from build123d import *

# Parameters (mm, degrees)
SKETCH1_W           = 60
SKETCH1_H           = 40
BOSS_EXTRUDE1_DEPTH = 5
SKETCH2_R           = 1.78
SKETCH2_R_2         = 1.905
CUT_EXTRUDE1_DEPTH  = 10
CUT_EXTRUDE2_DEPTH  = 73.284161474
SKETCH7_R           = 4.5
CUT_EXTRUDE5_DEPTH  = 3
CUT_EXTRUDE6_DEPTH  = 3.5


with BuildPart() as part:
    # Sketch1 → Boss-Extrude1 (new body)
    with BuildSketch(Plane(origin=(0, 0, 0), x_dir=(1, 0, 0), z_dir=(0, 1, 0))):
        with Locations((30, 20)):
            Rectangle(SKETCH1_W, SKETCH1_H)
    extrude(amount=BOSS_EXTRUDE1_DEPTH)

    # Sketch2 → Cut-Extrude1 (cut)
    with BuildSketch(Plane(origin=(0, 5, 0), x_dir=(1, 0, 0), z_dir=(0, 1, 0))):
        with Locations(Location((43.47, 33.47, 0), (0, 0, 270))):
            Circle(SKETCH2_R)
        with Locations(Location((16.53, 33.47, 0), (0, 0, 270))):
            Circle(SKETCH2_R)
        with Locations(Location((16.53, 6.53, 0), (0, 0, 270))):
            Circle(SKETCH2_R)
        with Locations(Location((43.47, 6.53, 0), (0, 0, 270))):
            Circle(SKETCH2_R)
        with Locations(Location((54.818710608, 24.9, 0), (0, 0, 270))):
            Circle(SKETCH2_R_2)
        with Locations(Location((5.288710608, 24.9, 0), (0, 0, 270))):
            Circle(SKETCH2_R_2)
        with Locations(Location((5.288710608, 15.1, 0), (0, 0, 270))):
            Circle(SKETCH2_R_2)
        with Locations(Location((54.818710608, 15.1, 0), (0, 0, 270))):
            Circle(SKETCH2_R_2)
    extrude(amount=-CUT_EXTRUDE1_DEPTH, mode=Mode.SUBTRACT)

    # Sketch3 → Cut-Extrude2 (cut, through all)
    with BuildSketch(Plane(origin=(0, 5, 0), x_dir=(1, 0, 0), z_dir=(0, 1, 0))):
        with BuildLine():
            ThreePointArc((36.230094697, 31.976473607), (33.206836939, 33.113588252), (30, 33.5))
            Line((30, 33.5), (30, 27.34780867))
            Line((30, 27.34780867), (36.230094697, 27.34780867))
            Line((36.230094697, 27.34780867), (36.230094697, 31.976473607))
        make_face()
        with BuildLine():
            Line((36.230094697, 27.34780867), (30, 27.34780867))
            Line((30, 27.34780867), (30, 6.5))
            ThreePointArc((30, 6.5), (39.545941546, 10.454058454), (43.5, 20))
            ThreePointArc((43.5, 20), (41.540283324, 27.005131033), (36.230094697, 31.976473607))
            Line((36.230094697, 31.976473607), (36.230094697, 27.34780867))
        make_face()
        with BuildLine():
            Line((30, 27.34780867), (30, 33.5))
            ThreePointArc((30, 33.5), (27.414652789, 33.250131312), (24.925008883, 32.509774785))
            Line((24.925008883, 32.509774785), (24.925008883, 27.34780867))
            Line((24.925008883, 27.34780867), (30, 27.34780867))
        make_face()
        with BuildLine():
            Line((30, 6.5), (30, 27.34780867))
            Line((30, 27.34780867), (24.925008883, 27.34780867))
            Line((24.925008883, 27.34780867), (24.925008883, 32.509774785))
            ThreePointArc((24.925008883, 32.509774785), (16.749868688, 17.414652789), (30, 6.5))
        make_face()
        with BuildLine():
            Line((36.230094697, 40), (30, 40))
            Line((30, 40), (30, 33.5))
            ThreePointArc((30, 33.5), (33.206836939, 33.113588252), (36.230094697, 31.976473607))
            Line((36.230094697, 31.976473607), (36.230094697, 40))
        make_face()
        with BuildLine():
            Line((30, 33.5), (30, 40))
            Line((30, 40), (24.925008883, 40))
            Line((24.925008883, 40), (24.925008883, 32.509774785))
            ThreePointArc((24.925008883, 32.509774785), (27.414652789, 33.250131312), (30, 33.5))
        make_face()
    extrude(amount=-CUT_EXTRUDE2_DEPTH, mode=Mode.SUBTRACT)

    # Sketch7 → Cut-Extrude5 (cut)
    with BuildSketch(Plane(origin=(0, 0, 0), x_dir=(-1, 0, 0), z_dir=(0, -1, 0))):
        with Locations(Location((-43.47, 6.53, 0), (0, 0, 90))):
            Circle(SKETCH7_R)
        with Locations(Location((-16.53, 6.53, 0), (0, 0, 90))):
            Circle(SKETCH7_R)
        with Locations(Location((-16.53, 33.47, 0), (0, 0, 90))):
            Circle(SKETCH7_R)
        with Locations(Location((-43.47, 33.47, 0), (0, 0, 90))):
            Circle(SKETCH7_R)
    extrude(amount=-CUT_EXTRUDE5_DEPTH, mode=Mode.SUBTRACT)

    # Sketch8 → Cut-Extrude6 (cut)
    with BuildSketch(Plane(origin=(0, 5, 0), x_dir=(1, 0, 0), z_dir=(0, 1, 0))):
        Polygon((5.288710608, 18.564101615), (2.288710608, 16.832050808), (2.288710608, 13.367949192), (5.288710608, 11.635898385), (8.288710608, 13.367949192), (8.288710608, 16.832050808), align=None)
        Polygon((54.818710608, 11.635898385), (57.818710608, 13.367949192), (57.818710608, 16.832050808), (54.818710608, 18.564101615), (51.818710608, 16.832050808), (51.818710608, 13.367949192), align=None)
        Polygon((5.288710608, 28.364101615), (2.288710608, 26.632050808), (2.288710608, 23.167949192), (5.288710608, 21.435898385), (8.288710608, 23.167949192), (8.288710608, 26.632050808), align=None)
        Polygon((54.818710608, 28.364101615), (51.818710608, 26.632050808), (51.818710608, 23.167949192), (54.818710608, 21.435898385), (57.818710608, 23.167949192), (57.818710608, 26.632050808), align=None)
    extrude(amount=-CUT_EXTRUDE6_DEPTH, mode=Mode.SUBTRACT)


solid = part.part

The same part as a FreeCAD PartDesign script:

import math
import FreeCAD as App
import Part
import Sketcher
from FreeCAD import Vector
Q = App.Units.Quantity


def add_polygon(sketch, points):
    """Adds a closed chain of lines whose ends are joined by coincident constraints."""
    first, n = sketch.GeometryCount, len(points)
    for a, b in zip(points, points[1:] + points[:1]):
        sketch.addGeometry(Part.LineSegment(App.Vector(*a, 0), App.Vector(*b, 0)), False)
    for i in range(n):
        sketch.addConstraint(Sketcher.Constraint("Coincident", first + i, 2, first + (i + 1) % n, 1))

doc = App.newDocument("Part")
params = doc.addObject("Spreadsheet::Sheet", "Params")
for row, (alias, value) in enumerate([
    ("sketch1_width", "60 mm"),
    ("sketch1_height", "40 mm"),
    ("pad1_length", "5 mm"),
    ("sketch2_diameter", "3.56 mm"),
    ("sketch2_diameter2", "3.81 mm"),
    ("pocket1_length", "10 mm"),
    ("sketch3_radius", "13.5 mm"),
    ("sketch4_diameter", "9 mm"),
    ("pocket3_length", "3 mm"),
    ("pocket4_length", "3.5 mm"),
], start=1):
    params.set(f"A{row}", alias)
    params.set(f"B{row}", "=" + value)
    params.setAlias(f"B{row}", alias)

body = doc.addObject("PartDesign::Body", "Body")

# Sketch on XZ plane
sketch1 = body.newObject("Sketcher::SketchObject", "Sketch")
sketch1.AttachmentSupport = (doc.getObject("XZ_Plane"), [""])
sketch1.MapMode = "FlatFace"
add_polygon(sketch1, [(0, -40), (0, 0), (60, 0), (60, -40)])  # lines 0-3
sketch1.addConstraint(Sketcher.Constraint("Vertical", 0))
sketch1.addConstraint(Sketcher.Constraint("Horizontal", 1))
sketch1.addConstraint(Sketcher.Constraint("Vertical", 2))
sketch1.addConstraint(Sketcher.Constraint("Horizontal", 3))
sketch1.addConstraint(Sketcher.Constraint("Coincident", 0, 2, -1, 1))
sketch1.addConstraint(Sketcher.Constraint("DistanceX", 1, 1, 1, 2, 60.0))
sketch1.addConstraint(Sketcher.Constraint("DistanceY", 0, 1, 0, 2, 40.0))
sketch1.setExpression("Constraints[9]", "Params.sketch1_width")
sketch1.setExpression("Constraints[10]", "Params.sketch1_height")
pad1 = body.newObject("PartDesign::Pad", "Pad")
pad1.Profile = sketch1
pad1.setExpression("Length", "Params.pad1_length")
pad1.Reversed = True

# Sketch on XZ plane
sketch2 = body.newObject("Sketcher::SketchObject", "Sketch001")
sketch2.AttachmentSupport = (doc.getObject("XZ_Plane"), [""])
sketch2.MapMode = "FlatFace"
sketch2.AttachmentOffset = App.Placement(Vector(0, 0, -5), App.Rotation())
sketch2.addGeometry(Part.Circle(Vector(43.47, -33.47, 0), Vector(0, 0, 1), 1.78), False)
sketch2.addGeometry(Part.Circle(Vector(16.53, -33.47, 0), Vector(0, 0, 1), 1.78), False)
sketch2.addGeometry(Part.Circle(Vector(16.53, -6.53, 0), Vector(0, 0, 1), 1.78), False)
sketch2.addGeometry(Part.Circle(Vector(43.47, -6.53, 0), Vector(0, 0, 1), 1.78), False)
sketch2.addGeometry(Part.Circle(Vector(54.818711, -24.9, 0), Vector(0, 0, 1), 1.905), False)
sketch2.addGeometry(Part.Circle(Vector(5.288711, -24.9, 0), Vector(0, 0, 1), 1.905), False)
sketch2.addGeometry(Part.Circle(Vector(5.288711, -15.1, 0), Vector(0, 0, 1), 1.905), False)
sketch2.addGeometry(Part.Circle(Vector(54.818711, -15.1, 0), Vector(0, 0, 1), 1.905), False)
sketch2.addConstraint(Sketcher.Constraint("Equal", 0, 1))
sketch2.addConstraint(Sketcher.Constraint("Equal", 1, 2))
sketch2.addConstraint(Sketcher.Constraint("Equal", 2, 3))
sketch2.addConstraint(Sketcher.Constraint("Equal", 4, 5))
sketch2.addConstraint(Sketcher.Constraint("Equal", 5, 6))
sketch2.addConstraint(Sketcher.Constraint("Equal", 6, 7))
sketch2.addConstraint(Sketcher.Constraint("Horizontal", 0, 3, 1, 3))
sketch2.addConstraint(Sketcher.Constraint("Horizontal", 2, 3, 3, 3))
sketch2.addConstraint(Sketcher.Constraint("Horizontal", 4, 3, 5, 3))
sketch2.addConstraint(Sketcher.Constraint("Horizontal", 6, 3, 7, 3))
sketch2.addConstraint(Sketcher.Constraint("Vertical", 1, 3, 2, 3))
sketch2.addConstraint(Sketcher.Constraint("Vertical", 0, 3, 3, 3))
sketch2.addConstraint(Sketcher.Constraint("Vertical", 5, 3, 6, 3))
sketch2.addConstraint(Sketcher.Constraint("Vertical", 4, 3, 7, 3))
sketch2.addConstraint(Sketcher.Constraint("Diameter", 0, 3.56))
sketch2.addConstraint(Sketcher.Constraint("Diameter", 4, 3.81))
sketch2.addConstraint(Sketcher.Constraint("DistanceY", 4, 3, -1, 1, 24.9))
sketch2.addConstraint(Sketcher.Constraint("DistanceY", 6, 3, -1, 1, 15.1))
sketch2.addConstraint(Sketcher.Constraint("DistanceX", -1, 1, 0, 3, 43.47))
sketch2.addConstraint(Sketcher.Constraint("DistanceY", 0, 3, -1, 1, 33.47))
sketch2.addConstraint(Sketcher.Constraint("DistanceX", -1, 1, 1, 3, 16.53))
sketch2.addConstraint(Sketcher.Constraint("DistanceY", 2, 3, -1, 1, 6.53))
sketch2.addConstraint(Sketcher.Constraint("DistanceX", 5, 3, 4, 3, 49.53))
sketch2.addConstraint(Sketcher.Constraint("DistanceX", -1, 1, 4, 3, 54.818711))
sketch2.setExpression("Constraints[14]", "Params.sketch2_diameter")
sketch2.setExpression("Constraints[15]", "Params.sketch2_diameter2")
pocket1 = body.newObject("PartDesign::Pocket", "Pocket")
pocket1.Profile = sketch2
pocket1.setExpression("Length", "Params.pocket1_length")
pocket1.Reversed = True

# Sketch on XZ plane
sketch3 = body.newObject("Sketcher::SketchObject", "Sketch002")
sketch3.AttachmentSupport = (doc.getObject("XZ_Plane"), [""])
sketch3.MapMode = "FlatFace"
sketch3.AttachmentOffset = App.Placement(Vector(0, 0, -5), App.Rotation())
sketch3.addGeometry(Part.ArcOfCircle(Part.Circle(Vector(30, -20, 0), Vector(0, 0, 1), 13.5), math.radians(90), math.radians(247.918488)), False)
sketch3.addGeometry(Part.ArcOfCircle(Part.Circle(Vector(30, -20, 0), Vector(0, 0, 1), 13.5), math.radians(0), math.radians(90)), False)
sketch3.addGeometry(Part.ArcOfCircle(Part.Circle(Vector(30, -20, 0), Vector(0, 0, 1), 13.5), math.radians(-62.516801), math.radians(0)), False)
sketch3.addGeometry(Part.LineSegment(Vector(36.230095, -31.976474, 0), Vector(36.230095, -40, 0)), False)
sketch3.addGeometry(Part.LineSegment(Vector(36.230095, -40, 0), Vector(24.925009, -40, 0)), False)
sketch3.addGeometry(Part.LineSegment(Vector(24.925009, -40, 0), Vector(24.925009, -32.509775, 0)), False)
sketch3.addConstraint(Sketcher.Constraint("Tangent", 0, 1, 1, 2))
sketch3.addConstraint(Sketcher.Constraint("Tangent", 1, 1, 2, 2))
sketch3.addConstraint(Sketcher.Constraint("Coincident", 2, 1, 3, 1))
sketch3.addConstraint(Sketcher.Constraint("Coincident", 3, 2, 4, 1))
sketch3.addConstraint(Sketcher.Constraint("Coincident", 4, 2, 5, 1))
sketch3.addConstraint(Sketcher.Constraint("Coincident", 5, 2, 0, 2))
sketch3.addConstraint(Sketcher.Constraint("Vertical", 3))
sketch3.addConstraint(Sketcher.Constraint("Horizontal", 4))
sketch3.addConstraint(Sketcher.Constraint("Vertical", 5))
sketch3.addConstraint(Sketcher.Constraint("Coincident", 2, 3, 0, 3))
sketch3.addConstraint(Sketcher.Constraint("Horizontal", 2, 3, 1, 1))
sketch3.addConstraint(Sketcher.Constraint("Vertical", 2, 3, 0, 1))
sketch3.addConstraint(Sketcher.Constraint("Radius", 0, 13.5))
sketch3.addConstraint(Sketcher.Constraint("DistanceX", -1, 1, 0, 3, 30.0))
sketch3.addConstraint(Sketcher.Constraint("DistanceY", 0, 3, -1, 1, 20.0))
sketch3.addConstraint(Sketcher.Constraint("DistanceY", 3, 2, -1, 1, 40.0))
sketch3.addConstraint(Sketcher.Constraint("DistanceY", 5, 2, 2, 1, 0.533301))
sketch3.addConstraint(Sketcher.Constraint("DistanceX", 4, 2, 4, 1, 11.305086))
sketch3.setExpression("Constraints[12]", "Params.sketch3_radius")
pocket2 = body.newObject("PartDesign::Pocket", "Pocket001")
pocket2.Profile = sketch3
pocket2.Type = "ThroughAll"
pocket2.Reversed = True

# Sketch on XZ plane
sketch4 = body.newObject("Sketcher::SketchObject", "Sketch003")
sketch4.AttachmentSupport = (doc.getObject("XZ_Plane"), [""])
sketch4.MapMode = "FlatFace"
sketch4.addGeometry(Part.Circle(Vector(43.47, -6.53, 0), Vector(0, 0, 1), 4.5), False)
sketch4.addGeometry(Part.Circle(Vector(16.53, -6.53, 0), Vector(0, 0, 1), 4.5), False)
sketch4.addGeometry(Part.Circle(Vector(16.53, -33.47, 0), Vector(0, 0, 1), 4.5), False)
sketch4.addGeometry(Part.Circle(Vector(43.47, -33.47, 0), Vector(0, 0, 1), 4.5), False)
sketch4.addConstraint(Sketcher.Constraint("Equal", 0, 1))
sketch4.addConstraint(Sketcher.Constraint("Equal", 1, 2))
sketch4.addConstraint(Sketcher.Constraint("Equal", 2, 3))
sketch4.addConstraint(Sketcher.Constraint("Horizontal", 0, 3, 1, 3))
sketch4.addConstraint(Sketcher.Constraint("Horizontal", 2, 3, 3, 3))
sketch4.addConstraint(Sketcher.Constraint("Vertical", 1, 3, 2, 3))
sketch4.addConstraint(Sketcher.Constraint("Vertical", 0, 3, 3, 3))
sketch4.addConstraint(Sketcher.Constraint("Diameter", 0, 9.0))
sketch4.addConstraint(Sketcher.Constraint("DistanceX", -1, 1, 0, 3, 43.47))
sketch4.addConstraint(Sketcher.Constraint("DistanceY", 0, 3, -1, 1, 6.53))
sketch4.addConstraint(Sketcher.Constraint("DistanceX", -1, 1, 1, 3, 16.53))
sketch4.addConstraint(Sketcher.Constraint("DistanceY", 2, 3, -1, 1, 33.47))
sketch4.setExpression("Constraints[7]", "Params.sketch4_diameter")
pocket3 = body.newObject("PartDesign::Pocket", "Pocket002")
pocket3.Profile = sketch4
pocket3.setExpression("Length", "Params.pocket3_length")

# Sketch on XZ plane
sketch5 = body.newObject("Sketcher::SketchObject", "Sketch004")
sketch5.AttachmentSupport = (doc.getObject("XZ_Plane"), [""])
sketch5.MapMode = "FlatFace"
sketch5.AttachmentOffset = App.Placement(Vector(0, 0, -5), App.Rotation())
add_polygon(sketch5, [(5.288711, -18.564102), (2.288711, -16.832051), (2.288711, -13.367949), (5.288711, -11.635898), (8.288711, -13.367949), (8.288711, -16.832051)])  # lines 0-5
add_polygon(sketch5, [(54.818711, -11.635898), (57.818711, -13.367949), (57.818711, -16.832051), (54.818711, -18.564102), (51.818711, -16.832051), (51.818711, -13.367949)])  # lines 6-11
add_polygon(sketch5, [(5.288711, -28.364102), (2.288711, -26.632051), (2.288711, -23.167949), (5.288711, -21.435898), (8.288711, -23.167949), (8.288711, -26.632051)])  # lines 12-17
add_polygon(sketch5, [(54.818711, -28.364102), (51.818711, -26.632051), (51.818711, -23.167949), (54.818711, -21.435898), (57.818711, -23.167949), (57.818711, -26.632051)])  # lines 18-23
sketch5.addConstraint(Sketcher.Constraint("Vertical", 1))
sketch5.addConstraint(Sketcher.Constraint("Vertical", 4))
sketch5.addConstraint(Sketcher.Constraint("Vertical", 7))
sketch5.addConstraint(Sketcher.Constraint("Vertical", 10))
sketch5.addConstraint(Sketcher.Constraint("Vertical", 13))
sketch5.addConstraint(Sketcher.Constraint("Vertical", 16))
sketch5.addConstraint(Sketcher.Constraint("Vertical", 19))
sketch5.addConstraint(Sketcher.Constraint("Vertical", 22))
sketch5.addConstraint(Sketcher.Constraint("Parallel", 0, 3))
sketch5.addConstraint(Sketcher.Constraint("Parallel", 2, 5))
sketch5.addConstraint(Sketcher.Constraint("Parallel", 3, 6))
sketch5.addConstraint(Sketcher.Constraint("Parallel", 5, 8))
sketch5.addConstraint(Sketcher.Constraint("Parallel", 6, 9))
sketch5.addConstraint(Sketcher.Constraint("Parallel", 8, 11))
sketch5.addConstraint(Sketcher.Constraint("Parallel", 9, 12))
sketch5.addConstraint(Sketcher.Constraint("Parallel", 11, 14))
sketch5.addConstraint(Sketcher.Constraint("Parallel", 12, 15))
sketch5.addConstraint(Sketcher.Constraint("Parallel", 14, 17))
sketch5.addConstraint(Sketcher.Constraint("Parallel", 15, 18))
sketch5.addConstraint(Sketcher.Constraint("Parallel", 17, 20))
sketch5.addConstraint(Sketcher.Constraint("Parallel", 18, 21))
sketch5.addConstraint(Sketcher.Constraint("Parallel", 20, 23))
sketch5.addConstraint(Sketcher.Constraint("Horizontal", 1, 2, 3, 2))
sketch5.addConstraint(Sketcher.Constraint("Horizontal", 0, 2, 4, 2))
sketch5.addConstraint(Sketcher.Constraint("Horizontal", 3, 2, 6, 2))
sketch5.addConstraint(Sketcher.Constraint("Horizontal", 4, 2, 7, 2))
sketch5.addConstraint(Sketcher.Constraint("Horizontal", 5, 2, 8, 2))
sketch5.addConstraint(Sketcher.Constraint("Horizontal", 7, 2, 9, 2))
sketch5.addConstraint(Sketcher.Constraint("Horizontal", 6, 2, 10, 2))
sketch5.addConstraint(Sketcher.Constraint("Horizontal", 13, 2, 15, 2))
sketch5.addConstraint(Sketcher.Constraint("Horizontal", 12, 2, 16, 2))
sketch5.addConstraint(Sketcher.Constraint("Horizontal", 16, 2, 18, 2))
sketch5.addConstraint(Sketcher.Constraint("Horizontal", 15, 2, 19, 2))
sketch5.addConstraint(Sketcher.Constraint("Horizontal", 14, 2, 20, 2))
sketch5.addConstraint(Sketcher.Constraint("Horizontal", 19, 2, 21, 2))
sketch5.addConstraint(Sketcher.Constraint("Horizontal", 18, 2, 22, 2))
sketch5.addConstraint(Sketcher.Constraint("Vertical", 2, 2, 5, 2))
sketch5.addConstraint(Sketcher.Constraint("Vertical", 1, 2, 12, 2))
sketch5.addConstraint(Sketcher.Constraint("Vertical", 5, 2, 14, 2))
sketch5.addConstraint(Sketcher.Constraint("Vertical", 10, 2, 18, 2))
sketch5.addConstraint(Sketcher.Constraint("Equal", 10, 13))
sketch5.addConstraint(Sketcher.Constraint("Angle", 0, Q("150 deg")))
sketch5.addConstraint(Sketcher.Constraint("DistanceX", 1, 2, 2, 2, 3.0))
sketch5.addConstraint(Sketcher.Constraint("DistanceY", 12, 2, 0, 2, 9.8))
sketch5.addConstraint(Sketcher.Constraint("DistanceX", 3, 2, 6, 2, 49.53))
sketch5.addConstraint(Sketcher.Constraint("DistanceY", 1, 1, 1, 2, 3.464102))
sketch5.addConstraint(Sketcher.Constraint("DistanceY", 2, 2, -1, 1, 11.635898))
sketch5.addConstraint(Sketcher.Constraint("DistanceX", -1, 1, 0, 2, 2.288711))
pocket4 = body.newObject("PartDesign::Pocket", "Pocket003")
pocket4.Profile = sketch5
pocket4.setExpression("Length", "Params.pocket4_length")
pocket4.Reversed = True

doc.recompute()
